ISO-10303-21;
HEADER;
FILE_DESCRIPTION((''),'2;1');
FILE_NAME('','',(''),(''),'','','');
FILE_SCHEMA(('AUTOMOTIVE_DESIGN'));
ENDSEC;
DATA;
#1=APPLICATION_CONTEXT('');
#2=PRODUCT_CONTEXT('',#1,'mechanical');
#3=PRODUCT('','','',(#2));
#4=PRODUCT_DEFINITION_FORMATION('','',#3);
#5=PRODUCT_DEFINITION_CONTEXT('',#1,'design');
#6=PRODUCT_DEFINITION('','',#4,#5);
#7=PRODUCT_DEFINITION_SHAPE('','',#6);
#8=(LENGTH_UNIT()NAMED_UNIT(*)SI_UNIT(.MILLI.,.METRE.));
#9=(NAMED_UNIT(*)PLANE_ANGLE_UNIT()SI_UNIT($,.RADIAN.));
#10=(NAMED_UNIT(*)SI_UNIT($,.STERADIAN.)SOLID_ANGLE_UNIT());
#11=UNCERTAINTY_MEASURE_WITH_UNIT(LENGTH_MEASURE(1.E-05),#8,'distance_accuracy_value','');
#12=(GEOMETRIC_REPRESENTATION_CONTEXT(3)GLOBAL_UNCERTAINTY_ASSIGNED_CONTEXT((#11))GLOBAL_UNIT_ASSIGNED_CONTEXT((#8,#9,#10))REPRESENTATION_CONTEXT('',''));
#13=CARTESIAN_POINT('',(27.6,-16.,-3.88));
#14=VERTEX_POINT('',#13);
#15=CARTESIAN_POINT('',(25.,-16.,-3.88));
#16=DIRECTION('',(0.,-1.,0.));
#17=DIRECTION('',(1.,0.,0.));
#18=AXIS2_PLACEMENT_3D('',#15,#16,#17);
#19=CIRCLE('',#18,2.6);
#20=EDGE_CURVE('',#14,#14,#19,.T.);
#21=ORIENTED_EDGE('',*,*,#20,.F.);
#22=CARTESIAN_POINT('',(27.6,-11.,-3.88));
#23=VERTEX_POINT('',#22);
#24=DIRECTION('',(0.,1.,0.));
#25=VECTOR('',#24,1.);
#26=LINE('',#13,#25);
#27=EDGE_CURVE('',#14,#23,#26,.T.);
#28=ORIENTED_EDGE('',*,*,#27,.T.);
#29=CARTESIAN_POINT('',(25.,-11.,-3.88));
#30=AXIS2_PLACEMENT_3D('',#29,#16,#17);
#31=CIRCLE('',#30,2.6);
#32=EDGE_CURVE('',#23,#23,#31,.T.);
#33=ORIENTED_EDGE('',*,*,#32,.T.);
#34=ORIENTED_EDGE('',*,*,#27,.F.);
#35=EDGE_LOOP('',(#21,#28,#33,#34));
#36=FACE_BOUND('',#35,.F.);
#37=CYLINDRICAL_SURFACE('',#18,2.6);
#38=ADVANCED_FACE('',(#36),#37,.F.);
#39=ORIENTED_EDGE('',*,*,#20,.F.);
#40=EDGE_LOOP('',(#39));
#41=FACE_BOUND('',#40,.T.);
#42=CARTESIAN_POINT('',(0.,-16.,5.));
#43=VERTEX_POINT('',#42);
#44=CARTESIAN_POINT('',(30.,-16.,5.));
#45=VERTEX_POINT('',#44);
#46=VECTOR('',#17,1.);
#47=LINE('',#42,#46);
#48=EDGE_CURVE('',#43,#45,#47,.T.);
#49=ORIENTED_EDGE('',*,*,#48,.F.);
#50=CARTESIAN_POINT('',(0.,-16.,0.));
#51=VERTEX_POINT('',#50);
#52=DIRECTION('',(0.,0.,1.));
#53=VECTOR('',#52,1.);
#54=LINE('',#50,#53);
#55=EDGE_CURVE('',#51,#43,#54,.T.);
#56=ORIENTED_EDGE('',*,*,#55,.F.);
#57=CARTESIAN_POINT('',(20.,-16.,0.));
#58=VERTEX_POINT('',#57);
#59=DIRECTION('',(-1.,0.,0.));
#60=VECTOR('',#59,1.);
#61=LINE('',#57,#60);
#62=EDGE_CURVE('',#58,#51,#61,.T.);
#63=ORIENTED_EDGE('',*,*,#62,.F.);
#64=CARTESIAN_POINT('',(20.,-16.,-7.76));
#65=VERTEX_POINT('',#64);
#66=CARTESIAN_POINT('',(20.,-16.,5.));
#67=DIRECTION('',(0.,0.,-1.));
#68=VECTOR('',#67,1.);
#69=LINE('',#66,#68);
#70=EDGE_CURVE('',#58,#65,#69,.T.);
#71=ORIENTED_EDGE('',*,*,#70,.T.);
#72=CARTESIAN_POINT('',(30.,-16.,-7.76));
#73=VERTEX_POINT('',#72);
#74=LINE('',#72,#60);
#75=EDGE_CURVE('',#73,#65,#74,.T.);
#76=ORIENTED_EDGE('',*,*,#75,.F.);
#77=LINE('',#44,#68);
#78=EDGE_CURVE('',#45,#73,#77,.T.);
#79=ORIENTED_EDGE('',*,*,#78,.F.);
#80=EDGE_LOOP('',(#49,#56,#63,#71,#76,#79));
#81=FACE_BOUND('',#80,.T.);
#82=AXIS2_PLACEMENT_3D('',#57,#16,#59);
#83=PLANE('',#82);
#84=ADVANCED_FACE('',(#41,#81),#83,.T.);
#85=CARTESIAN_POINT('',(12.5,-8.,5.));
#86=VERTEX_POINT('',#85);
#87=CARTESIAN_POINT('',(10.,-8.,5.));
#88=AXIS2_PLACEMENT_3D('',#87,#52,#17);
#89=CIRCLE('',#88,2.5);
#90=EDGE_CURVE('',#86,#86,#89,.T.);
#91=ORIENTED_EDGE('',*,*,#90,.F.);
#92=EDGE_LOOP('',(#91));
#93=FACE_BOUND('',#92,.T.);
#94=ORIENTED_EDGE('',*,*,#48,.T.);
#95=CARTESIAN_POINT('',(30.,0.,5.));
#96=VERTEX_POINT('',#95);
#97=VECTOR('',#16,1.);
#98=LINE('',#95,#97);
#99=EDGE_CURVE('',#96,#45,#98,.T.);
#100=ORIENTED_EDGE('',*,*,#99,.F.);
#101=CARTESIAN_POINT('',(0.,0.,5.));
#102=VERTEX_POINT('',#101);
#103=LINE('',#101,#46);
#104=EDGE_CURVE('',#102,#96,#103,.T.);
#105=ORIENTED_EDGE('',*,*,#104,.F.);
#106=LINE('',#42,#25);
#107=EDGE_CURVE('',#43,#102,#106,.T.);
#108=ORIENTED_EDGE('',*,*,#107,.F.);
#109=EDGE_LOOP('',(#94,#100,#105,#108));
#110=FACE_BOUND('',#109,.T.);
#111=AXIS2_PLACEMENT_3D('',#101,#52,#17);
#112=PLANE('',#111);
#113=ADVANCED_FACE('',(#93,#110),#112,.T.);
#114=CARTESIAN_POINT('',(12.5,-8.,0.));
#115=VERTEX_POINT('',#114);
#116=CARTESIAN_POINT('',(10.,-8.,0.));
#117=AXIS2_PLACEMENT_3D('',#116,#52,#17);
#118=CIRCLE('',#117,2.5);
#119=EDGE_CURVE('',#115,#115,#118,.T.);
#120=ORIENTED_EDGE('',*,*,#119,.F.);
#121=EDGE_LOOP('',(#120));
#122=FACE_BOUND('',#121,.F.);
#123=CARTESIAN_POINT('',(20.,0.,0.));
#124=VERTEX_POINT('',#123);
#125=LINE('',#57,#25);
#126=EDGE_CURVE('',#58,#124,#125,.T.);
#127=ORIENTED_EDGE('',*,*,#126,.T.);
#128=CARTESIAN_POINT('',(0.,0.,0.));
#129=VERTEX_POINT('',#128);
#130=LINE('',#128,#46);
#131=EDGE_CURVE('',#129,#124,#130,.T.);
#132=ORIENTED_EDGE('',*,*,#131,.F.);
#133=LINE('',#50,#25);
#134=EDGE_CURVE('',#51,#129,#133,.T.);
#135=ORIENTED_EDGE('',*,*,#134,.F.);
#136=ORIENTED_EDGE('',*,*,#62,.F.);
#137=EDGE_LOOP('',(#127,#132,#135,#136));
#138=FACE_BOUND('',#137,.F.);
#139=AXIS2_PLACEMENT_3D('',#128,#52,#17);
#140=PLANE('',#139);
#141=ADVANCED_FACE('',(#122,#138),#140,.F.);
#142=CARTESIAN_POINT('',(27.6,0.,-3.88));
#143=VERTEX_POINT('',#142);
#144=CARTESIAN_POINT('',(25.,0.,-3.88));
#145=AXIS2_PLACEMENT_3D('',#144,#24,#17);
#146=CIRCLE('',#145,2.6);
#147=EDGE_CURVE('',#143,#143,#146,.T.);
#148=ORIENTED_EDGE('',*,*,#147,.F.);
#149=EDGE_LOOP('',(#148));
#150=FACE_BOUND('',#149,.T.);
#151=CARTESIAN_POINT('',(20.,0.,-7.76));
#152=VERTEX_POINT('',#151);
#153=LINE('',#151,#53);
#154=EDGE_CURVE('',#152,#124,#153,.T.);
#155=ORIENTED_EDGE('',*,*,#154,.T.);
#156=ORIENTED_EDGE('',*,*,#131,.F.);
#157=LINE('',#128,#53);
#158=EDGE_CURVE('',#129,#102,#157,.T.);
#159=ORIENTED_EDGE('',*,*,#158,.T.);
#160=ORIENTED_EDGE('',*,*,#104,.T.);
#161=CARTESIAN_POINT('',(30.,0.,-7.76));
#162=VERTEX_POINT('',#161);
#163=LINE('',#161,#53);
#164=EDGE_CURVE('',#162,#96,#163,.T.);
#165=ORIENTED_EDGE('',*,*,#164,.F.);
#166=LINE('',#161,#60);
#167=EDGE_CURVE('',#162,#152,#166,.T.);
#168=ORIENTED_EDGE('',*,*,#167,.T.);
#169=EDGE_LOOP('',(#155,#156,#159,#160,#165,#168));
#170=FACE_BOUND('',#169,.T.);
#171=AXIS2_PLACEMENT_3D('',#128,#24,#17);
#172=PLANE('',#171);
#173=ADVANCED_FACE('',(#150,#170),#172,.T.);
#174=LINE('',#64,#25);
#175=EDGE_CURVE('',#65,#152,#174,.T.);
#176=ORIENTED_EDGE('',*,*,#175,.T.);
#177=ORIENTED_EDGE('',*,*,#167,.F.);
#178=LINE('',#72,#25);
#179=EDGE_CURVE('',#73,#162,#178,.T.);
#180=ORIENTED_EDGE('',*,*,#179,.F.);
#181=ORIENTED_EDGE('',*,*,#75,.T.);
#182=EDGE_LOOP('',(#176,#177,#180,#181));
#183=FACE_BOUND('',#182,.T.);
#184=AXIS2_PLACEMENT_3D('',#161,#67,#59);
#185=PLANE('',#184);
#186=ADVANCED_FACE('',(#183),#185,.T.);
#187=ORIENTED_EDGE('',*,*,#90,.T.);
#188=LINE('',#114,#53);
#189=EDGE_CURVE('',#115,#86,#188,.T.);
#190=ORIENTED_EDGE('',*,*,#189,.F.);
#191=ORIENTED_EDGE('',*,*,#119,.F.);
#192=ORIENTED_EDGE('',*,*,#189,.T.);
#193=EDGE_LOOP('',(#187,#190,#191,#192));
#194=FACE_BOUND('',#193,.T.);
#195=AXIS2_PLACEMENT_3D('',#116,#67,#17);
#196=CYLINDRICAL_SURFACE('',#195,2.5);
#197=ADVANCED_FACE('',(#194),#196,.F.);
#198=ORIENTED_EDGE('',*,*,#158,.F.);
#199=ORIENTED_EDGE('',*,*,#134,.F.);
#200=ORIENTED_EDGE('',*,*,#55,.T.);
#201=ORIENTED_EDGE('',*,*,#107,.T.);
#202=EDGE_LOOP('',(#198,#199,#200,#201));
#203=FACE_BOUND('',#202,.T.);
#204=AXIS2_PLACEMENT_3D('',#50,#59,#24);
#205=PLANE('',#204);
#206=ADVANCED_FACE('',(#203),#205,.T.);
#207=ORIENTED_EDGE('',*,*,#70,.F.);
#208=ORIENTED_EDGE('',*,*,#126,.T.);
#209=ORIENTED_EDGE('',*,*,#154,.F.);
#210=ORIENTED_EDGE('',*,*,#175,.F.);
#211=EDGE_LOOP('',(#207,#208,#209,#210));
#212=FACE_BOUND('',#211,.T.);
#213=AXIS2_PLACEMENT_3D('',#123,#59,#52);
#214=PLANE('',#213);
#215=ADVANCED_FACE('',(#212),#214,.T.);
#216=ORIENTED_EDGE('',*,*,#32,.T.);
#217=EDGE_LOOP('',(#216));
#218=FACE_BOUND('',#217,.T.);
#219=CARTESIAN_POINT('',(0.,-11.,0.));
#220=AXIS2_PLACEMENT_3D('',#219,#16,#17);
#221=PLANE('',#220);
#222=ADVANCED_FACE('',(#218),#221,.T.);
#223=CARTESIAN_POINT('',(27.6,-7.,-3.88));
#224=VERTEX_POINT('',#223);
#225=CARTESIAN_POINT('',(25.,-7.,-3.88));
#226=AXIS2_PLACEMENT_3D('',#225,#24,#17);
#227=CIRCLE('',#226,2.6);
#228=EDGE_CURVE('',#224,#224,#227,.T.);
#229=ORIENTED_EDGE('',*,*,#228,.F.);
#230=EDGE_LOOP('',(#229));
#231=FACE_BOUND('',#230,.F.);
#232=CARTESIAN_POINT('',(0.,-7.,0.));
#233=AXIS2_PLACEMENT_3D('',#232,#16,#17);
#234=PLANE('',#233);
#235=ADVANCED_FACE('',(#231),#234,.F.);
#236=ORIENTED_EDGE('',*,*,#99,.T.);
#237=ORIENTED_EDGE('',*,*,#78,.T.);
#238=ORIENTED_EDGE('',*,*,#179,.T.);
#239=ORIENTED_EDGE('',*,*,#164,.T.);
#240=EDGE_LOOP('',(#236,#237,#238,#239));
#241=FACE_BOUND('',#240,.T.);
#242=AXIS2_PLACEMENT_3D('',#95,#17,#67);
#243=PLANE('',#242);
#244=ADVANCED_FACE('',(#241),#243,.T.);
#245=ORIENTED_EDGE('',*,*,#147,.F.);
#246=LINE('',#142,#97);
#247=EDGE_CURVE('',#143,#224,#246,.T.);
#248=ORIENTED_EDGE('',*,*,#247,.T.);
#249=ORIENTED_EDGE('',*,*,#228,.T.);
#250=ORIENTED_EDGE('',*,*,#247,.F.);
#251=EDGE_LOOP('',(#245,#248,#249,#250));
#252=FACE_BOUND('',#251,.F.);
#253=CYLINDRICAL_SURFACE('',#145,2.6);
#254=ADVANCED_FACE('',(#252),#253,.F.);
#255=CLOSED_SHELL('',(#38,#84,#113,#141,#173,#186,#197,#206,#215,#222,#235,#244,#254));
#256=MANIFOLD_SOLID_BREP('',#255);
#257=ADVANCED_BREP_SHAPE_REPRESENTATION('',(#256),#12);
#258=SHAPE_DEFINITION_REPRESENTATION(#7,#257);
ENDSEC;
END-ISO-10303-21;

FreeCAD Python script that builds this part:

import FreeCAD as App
import Part
import Sketcher
from FreeCAD import Vector

doc = App.newDocument("Part")
body = doc.addObject("PartDesign::Body", "Body")

sketch1 = doc.addObject("Sketcher::SketchObject", "Sketch")
body.addObject(sketch1)
sketch1.AttachmentSupport = (doc.XY_Plane, [""])
sketch1.MapMode = "FlatFace"
sketch1.addGeometry([
    Part.LineSegment(Vector(20, 0, 0), Vector(0, 0, 0)),
    Part.LineSegment(Vector(0, 0, 0), Vector(0, -16, 0)),
    Part.LineSegment(Vector(0, -16, 0), Vector(20, -16, 0)),
    Part.LineSegment(Vector(20, -16, 0), Vector(20, 0, 0)),
    Part.Circle(Vector(10, -8, 0), Vector(0, 0, 1), 2.5),
], False)
sketch1.addConstraint([
    Sketcher.Constraint("Coincident", 0, 2, 1, 1),
    Sketcher.Constraint("Coincident", 1, 2, 2, 1),
    Sketcher.Constraint("Coincident", 2, 2, 3, 1),
    Sketcher.Constraint("Coincident", 3, 2, 0, 1),
    Sketcher.Constraint("Horizontal", 0),
    Sketcher.Constraint("Vertical", 1),
    Sketcher.Constraint("Horizontal", 2),
    Sketcher.Constraint("Vertical", 3),
    Sketcher.Constraint("Coincident", 0, 2, -1, 1),
    Sketcher.Constraint("Diameter", 4, 5.0),
    Sketcher.Constraint("DistanceX", 0, 2, 0, 1, 20.0),
    Sketcher.Constraint("DistanceY", 1, 2, 1, 1, 16.0),
    Sketcher.Constraint("DistanceX", -1, 1, 4, 3, 10.0),
    Sketcher.Constraint("DistanceY", 4, 3, -1, 1, 8.0),
])
pad1 = doc.addObject("PartDesign::Pad", "Pad")
body.addObject(pad1)
pad1.Profile = sketch1
pad1.Length = 5

sketch2 = doc.addObject("Sketcher::SketchObject", "Sketch001")
body.addObject(sketch2)
sketch2.AttachmentSupport = (doc.XZ_Plane, [""])
sketch2.MapMode = "FlatFace"
sketch2.addGeometry([
    Part.LineSegment(Vector(30, 5, 0), Vector(30, -7.76, 0)),
    Part.LineSegment(Vector(30, -7.76, 0), Vector(20, -7.76, 0)),
    Part.LineSegment(Vector(20, -7.76, 0), Vector(20, 5, 0)),
    Part.LineSegment(Vector(20, 5, 0), Vector(30, 5, 0)),
    Part.Circle(Vector(25, -3.88, 0), Vector(0, 0, 1), 2.6),
], False)
sketch2.addConstraint([
    Sketcher.Constraint("Coincident", 0, 2, 1, 1),
    Sketcher.Constraint("Coincident", 1, 2, 2, 1),
    Sketcher.Constraint("Coincident", 2, 2, 3, 1),
    Sketcher.Constraint("Coincident", 3, 2, 0, 1),
    Sketcher.Constraint("Vertical", 0),
    Sketcher.Constraint("Horizontal", 1),
    Sketcher.Constraint("Vertical", 2),
    Sketcher.Constraint("Horizontal", 3),
    Sketcher.Constraint("Diameter", 4, 5.2),
    Sketcher.Constraint("DistanceX", 1, 2, 1, 1, 10.0),
    Sketcher.Constraint("DistanceY", 0, 2, -1, 1, 7.76),
    Sketcher.Constraint("DistanceX", -1, 1, 4, 3, 25.0),
    Sketcher.Constraint("DistanceX", -1, 1, 0, 2, 30.0),
    Sketcher.Constraint("DistanceY", -1, 1, 2, 2, 5.0),
    Sketcher.Constraint("DistanceY", 4, 3, -1, 1, 3.88),
])
pad2 = doc.addObject("PartDesign::Pad", "Pad001")
body.addObject(pad2)
pad2.Profile = sketch2
pad2.Length = 16

sketch3 = doc.addObject("Sketcher::SketchObject", "Sketch002")
body.addObject(sketch3)
sketch3.AttachmentSupport = (doc.XZ_Plane, [""])
sketch3.MapMode = "FlatFace"
sketch3.AttachmentOffset = App.Placement(Vector(0, 0, 16), App.Rotation())
sketch3.addGeometry([
    Part.LineSegment(Vector(20, -7.76, 0), Vector(30, -7.76, 0)),
    Part.LineSegment(Vector(30, -7.76, 0), Vector(30, 0, 0)),
    Part.LineSegment(Vector(30, 0, 0), Vector(20, 0, 0)),
    Part.LineSegment(Vector(20, 0, 0), Vector(20, -7.76, 0)),
], False)
sketch3.addConstraint([
    Sketcher.Constraint("Coincident", 0, 2, 1, 1),
    Sketcher.Constraint("Coincident", 1, 2, 2, 1),
    Sketcher.Constraint("Coincident", 2, 2, 3, 1),
    Sketcher.Constraint("Coincident", 3, 2, 0, 1),
    Sketcher.Constraint("Horizontal", 0),
    Sketcher.Constraint("Vertical", 1),
    Sketcher.Constraint("Horizontal", 2),
    Sketcher.Constraint("Vertical", 3),
    Sketcher.Constraint("PointOnObject", 1, 2, -1),
    Sketcher.Constraint("DistanceX", 0, 1, 0, 2, 10.0),
    Sketcher.Constraint("DistanceX", -1, 1, 0, 2, 30.0),
    Sketcher.Constraint("DistanceY", 1, 1, 1, 2, 7.76),
])
pad3 = doc.addObject("PartDesign::Pad", "Pad002")
body.addObject(pad3)
pad3.Profile = sketch3
pad3.Length = 9
pad3.Reversed = True

sketch4 = doc.addObject("Sketcher::SketchObject", "Sketch003")
body.addObject(sketch4)
sketch4.AttachmentSupport = (doc.XZ_Plane, [""])
sketch4.MapMode = "FlatFace"
sketch4.AttachmentOffset = App.Placement(Vector(0, 0, 16), App.Rotation())
sketch4.addGeometry(Part.Circle(Vector(25, -3.88, 0), Vector(0, 0, 1), 2.6), False)
sketch4.addConstraint([
    Sketcher.Constraint("Diameter", 0, 5.2),
    Sketcher.Constraint("DistanceX", -1, 1, 0, 3, 25.0),
    Sketcher.Constraint("DistanceY", 0, 3, -1, 1, 3.88),
])
pocket1 = doc.addObject("PartDesign::Pocket", "Pocket")
body.addObject(pocket1)
pocket1.Profile = sketch4
pocket1.Length = 5

doc.recompute()
